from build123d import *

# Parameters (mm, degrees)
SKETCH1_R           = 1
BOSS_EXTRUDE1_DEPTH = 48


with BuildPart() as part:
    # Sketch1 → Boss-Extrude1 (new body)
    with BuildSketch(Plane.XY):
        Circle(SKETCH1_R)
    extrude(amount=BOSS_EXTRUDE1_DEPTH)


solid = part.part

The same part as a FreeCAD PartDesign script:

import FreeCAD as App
import Part
import Sketcher
Q = App.Units.Quantity

doc = App.newDocument("Part")
body = doc.addObject("PartDesign::Body", "Body")

sketch1 = body.newObject("Sketcher::SketchObject", "Sketch")
sketch1.AttachmentSupport = (doc.getObject("XY_Plane"), [""])
sketch1.MapMode = "FlatFace"
sketch1.addGeometry(Part.Circle(App.Vector(0, 0, 0), App.Vector(0, 0, 1), 1), False)
sketch1.addConstraint(Sketcher.Constraint("Coincident", 0, 3, -1, 1))
sketch1.addConstraint(Sketcher.Constraint("Diameter", 0, Q("2 mm")))
pad1 = body.newObject("PartDesign::Pad", "Pad")
pad1.Profile = sketch1
pad1.Length = 48

doc.recompute()
